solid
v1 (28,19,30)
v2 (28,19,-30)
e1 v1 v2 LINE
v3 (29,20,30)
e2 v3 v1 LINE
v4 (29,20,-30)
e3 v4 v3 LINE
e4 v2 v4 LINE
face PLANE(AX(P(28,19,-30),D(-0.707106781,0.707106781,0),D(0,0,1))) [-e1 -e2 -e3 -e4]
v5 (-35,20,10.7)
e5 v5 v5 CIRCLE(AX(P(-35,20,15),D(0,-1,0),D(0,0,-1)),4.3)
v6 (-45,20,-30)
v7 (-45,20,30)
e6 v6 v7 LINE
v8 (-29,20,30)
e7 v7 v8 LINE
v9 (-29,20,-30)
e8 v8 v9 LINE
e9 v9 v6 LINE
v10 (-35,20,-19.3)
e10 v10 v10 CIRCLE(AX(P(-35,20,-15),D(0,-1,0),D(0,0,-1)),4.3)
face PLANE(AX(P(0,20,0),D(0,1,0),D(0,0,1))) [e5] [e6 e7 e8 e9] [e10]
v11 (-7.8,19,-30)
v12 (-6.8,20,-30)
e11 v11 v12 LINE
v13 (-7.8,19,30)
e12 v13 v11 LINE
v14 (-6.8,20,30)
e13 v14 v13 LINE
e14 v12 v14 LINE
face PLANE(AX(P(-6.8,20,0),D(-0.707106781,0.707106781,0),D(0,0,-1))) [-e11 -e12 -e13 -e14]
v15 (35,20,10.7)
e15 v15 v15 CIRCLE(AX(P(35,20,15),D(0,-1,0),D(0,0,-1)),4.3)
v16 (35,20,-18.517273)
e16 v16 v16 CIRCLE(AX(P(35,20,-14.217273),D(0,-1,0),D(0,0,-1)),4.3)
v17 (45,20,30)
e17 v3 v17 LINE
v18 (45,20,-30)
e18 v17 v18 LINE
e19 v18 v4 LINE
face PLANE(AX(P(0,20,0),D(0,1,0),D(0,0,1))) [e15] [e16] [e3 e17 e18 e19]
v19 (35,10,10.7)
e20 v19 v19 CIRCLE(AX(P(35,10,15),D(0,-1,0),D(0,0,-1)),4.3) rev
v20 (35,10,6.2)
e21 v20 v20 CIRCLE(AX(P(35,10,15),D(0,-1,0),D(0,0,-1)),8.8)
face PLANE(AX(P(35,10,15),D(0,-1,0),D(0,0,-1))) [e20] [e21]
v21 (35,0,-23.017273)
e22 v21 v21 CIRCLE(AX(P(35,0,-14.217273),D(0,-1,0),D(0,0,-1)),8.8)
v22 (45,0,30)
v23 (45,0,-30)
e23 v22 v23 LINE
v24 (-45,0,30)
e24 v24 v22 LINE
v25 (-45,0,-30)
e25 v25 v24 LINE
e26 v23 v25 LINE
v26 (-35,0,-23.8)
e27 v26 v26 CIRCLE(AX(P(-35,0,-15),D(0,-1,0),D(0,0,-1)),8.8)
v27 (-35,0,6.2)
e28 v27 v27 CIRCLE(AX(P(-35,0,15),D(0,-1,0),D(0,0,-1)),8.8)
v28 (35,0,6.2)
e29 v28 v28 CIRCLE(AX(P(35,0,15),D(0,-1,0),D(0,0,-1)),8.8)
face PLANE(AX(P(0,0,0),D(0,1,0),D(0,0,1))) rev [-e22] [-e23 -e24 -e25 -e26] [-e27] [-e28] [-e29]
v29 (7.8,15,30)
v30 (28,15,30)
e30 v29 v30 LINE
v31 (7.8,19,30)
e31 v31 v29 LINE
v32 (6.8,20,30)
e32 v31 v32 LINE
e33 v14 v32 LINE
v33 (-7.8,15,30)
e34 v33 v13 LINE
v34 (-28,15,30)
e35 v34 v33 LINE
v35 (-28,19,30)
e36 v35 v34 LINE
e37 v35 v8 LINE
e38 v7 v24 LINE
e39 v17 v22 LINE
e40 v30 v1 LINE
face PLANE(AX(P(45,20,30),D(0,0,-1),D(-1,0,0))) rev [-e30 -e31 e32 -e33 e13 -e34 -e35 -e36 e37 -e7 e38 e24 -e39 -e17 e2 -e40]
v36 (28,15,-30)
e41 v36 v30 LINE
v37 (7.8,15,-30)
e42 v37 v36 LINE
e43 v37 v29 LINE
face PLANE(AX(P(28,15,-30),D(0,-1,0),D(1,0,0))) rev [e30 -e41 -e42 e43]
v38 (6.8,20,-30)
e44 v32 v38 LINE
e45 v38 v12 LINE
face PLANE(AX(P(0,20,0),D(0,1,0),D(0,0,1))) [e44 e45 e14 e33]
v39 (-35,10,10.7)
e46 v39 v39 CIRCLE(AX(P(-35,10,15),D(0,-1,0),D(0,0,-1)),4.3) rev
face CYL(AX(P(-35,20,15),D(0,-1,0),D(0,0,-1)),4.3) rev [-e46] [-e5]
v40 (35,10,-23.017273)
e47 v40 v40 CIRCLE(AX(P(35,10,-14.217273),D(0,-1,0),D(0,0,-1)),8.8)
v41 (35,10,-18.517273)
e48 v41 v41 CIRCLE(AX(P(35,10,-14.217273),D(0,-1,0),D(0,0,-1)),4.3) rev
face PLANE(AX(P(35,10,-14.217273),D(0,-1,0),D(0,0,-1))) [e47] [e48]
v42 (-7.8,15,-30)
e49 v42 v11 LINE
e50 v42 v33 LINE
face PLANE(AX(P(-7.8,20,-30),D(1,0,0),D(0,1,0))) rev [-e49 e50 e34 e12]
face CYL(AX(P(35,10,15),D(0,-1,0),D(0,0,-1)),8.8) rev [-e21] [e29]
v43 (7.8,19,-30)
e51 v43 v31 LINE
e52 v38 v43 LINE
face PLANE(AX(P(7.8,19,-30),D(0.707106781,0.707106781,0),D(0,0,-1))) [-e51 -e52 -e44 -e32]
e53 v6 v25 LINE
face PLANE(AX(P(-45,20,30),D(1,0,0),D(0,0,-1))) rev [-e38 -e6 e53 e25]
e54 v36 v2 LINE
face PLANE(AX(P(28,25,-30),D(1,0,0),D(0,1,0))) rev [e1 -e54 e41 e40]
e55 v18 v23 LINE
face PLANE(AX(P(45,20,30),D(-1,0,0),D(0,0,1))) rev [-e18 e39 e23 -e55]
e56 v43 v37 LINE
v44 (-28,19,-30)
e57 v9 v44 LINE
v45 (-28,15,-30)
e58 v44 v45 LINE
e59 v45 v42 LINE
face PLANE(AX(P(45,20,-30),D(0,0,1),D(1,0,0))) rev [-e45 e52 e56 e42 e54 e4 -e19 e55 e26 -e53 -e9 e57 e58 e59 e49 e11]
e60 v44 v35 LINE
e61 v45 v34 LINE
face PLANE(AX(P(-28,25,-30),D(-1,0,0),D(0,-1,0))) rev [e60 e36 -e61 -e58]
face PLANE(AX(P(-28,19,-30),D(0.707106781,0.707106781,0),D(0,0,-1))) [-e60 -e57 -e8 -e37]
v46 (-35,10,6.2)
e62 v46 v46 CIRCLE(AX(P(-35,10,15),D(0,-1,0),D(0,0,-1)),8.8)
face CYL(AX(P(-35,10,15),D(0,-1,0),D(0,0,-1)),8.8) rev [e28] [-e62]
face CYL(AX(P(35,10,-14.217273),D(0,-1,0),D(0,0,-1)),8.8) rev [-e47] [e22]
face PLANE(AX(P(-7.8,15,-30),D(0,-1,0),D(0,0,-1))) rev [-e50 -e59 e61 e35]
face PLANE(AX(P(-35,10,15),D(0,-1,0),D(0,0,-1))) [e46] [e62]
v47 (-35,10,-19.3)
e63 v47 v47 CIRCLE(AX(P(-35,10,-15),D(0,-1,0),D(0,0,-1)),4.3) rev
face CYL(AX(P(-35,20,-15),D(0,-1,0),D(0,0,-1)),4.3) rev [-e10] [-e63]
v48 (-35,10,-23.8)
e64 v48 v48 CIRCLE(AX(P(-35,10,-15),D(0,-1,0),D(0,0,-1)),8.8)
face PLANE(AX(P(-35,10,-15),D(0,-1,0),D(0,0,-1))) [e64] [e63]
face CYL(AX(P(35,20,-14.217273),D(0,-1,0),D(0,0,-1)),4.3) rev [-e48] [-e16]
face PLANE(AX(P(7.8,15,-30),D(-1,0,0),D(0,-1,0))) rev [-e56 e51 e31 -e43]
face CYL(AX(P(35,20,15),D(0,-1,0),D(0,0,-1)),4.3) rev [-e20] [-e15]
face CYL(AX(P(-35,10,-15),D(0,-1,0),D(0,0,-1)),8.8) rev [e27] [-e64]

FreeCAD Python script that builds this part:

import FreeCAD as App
import Part
import Sketcher

V = App.Vector


def edges_at(feature, points):
    """Names of the edges that pass closest to the given points."""
    edges = feature.Shape.Edges
    near = lambda p: min(range(len(edges)), key=lambda i: edges[i].distToShape(Part.Vertex(*p))[0])
    return sorted({f"Edge{near(p) + 1}" for p in points})

doc = App.newDocument("Part")
body = doc.addObject("PartDesign::Body", "Body")

# Sketch on XZ plane
sketch1 = body.newObject("Sketcher::SketchObject", "Sketch")
sketch1.AttachmentSupport = (doc.getObject("XZ_Plane"), [""])
sketch1.MapMode = "FlatFace"
sketch1.addGeometry([
    Part.LineSegment(V(-45, -30, 0), V(-45, 30, 0)),
    Part.LineSegment(V(-45, 30, 0), V(45, 30, 0)),
    Part.LineSegment(V(45, 30, 0), V(45, -30, 0)),
    Part.LineSegment(V(45, -30, 0), V(-45, -30, 0)),
], False)
sketch1.addConstraint([
    Sketcher.Constraint("Coincident", 0, 2, 1, 1),
    Sketcher.Constraint("Coincident", 1, 2, 2, 1),
    Sketcher.Constraint("Coincident", 2, 2, 3, 1),
    Sketcher.Constraint("Coincident", 3, 2, 0, 1),
    Sketcher.Constraint("Vertical", 0),
    Sketcher.Constraint("Horizontal", 1),
    Sketcher.Constraint("Vertical", 2),
    Sketcher.Constraint("Horizontal", 3),
    Sketcher.Constraint("Symmetric", 0, 2, 2, 2, -1, 1),
    Sketcher.Constraint("DistanceX", 1, 1, 1, 2, 90.0),
    Sketcher.Constraint("DistanceY", 0, 1, 0, 2, 60.0),
])
pad1 = body.newObject("PartDesign::Pad", "Pad")
pad1.Profile = sketch1
pad1.Length = 20
pad1.Reversed = True

# Sketch on XY plane
sketch2 = body.newObject("Sketcher::SketchObject", "Sketch001")
sketch2.AttachmentSupport = (doc.getObject("XY_Plane"), [""])
sketch2.MapMode = "FlatFace"
sketch2.AttachmentOffset = App.Placement(V(0, 0, 30), App.Rotation())
sketch2.addGeometry([
    Part.LineSegment(V(28, 25, 0), V(-28, 25, 0)),  # 0
    Part.LineSegment(V(-28, 25, 0), V(-28, 15, 0)),  # 1
    Part.LineSegment(V(-28, 15, 0), V(-8, 15, 0)),  # 2
    Part.LineSegment(V(-8, 15, 0), V(-8, 20, 0)),  # 3
    Part.LineSegment(V(-8, 20, 0), V(8, 20, 0)),  # 4
    Part.LineSegment(V(8, 20, 0), V(8, 15, 0)),  # 5
    Part.LineSegment(V(8, 15, 0), V(28, 15, 0)),  # 6
    Part.LineSegment(V(28, 15, 0), V(28, 25, 0)),  # 7
], False)
sketch2.addConstraint([
    Sketcher.Constraint("Coincident", 0, 2, 1, 1),
    Sketcher.Constraint("Coincident", 1, 2, 2, 1),
    Sketcher.Constraint("Coincident", 2, 2, 3, 1),
    Sketcher.Constraint("Coincident", 3, 2, 4, 1),
    Sketcher.Constraint("Coincident", 4, 2, 5, 1),
    Sketcher.Constraint("Coincident", 5, 2, 6, 1),
    Sketcher.Constraint("Coincident", 6, 2, 7, 1),
    Sketcher.Constraint("Coincident", 7, 2, 0, 1),
    Sketcher.Constraint("Horizontal", 0),
    Sketcher.Constraint("Vertical", 1),
    Sketcher.Constraint("Horizontal", 2),
    Sketcher.Constraint("Vertical", 3),
    Sketcher.Constraint("Horizontal", 4),
    Sketcher.Constraint("Vertical", 5),
    Sketcher.Constraint("Horizontal", 6),
    Sketcher.Constraint("Vertical", 7),
    Sketcher.Constraint("Symmetric", 2, 2, 5, 2, -2),
    Sketcher.Constraint("Equal", 2, 6),
    Sketcher.Constraint("DistanceX", 0, 2, 0, 1, 56.0),
    Sketcher.Constraint("DistanceY", 1, 2, 1, 1, 10.0),
    Sketcher.Constraint("DistanceY", 3, 1, 3, 2, 5.0),
    Sketcher.Constraint("DistanceX", 2, 1, 2, 2, 20.2),
    Sketcher.Constraint("DistanceY", -1, 1, 0, 2, 25.0),
])
pocket1 = body.newObject("PartDesign::Pocket", "Pocket")
pocket1.Profile = sketch2
pocket1.Type = "ThroughAll"

# Sketch on XZ plane
sketch3 = body.newObject("Sketcher::SketchObject", "Sketch002")
sketch3.AttachmentSupport = (doc.getObject("XZ_Plane"), [""])
sketch3.MapMode = "FlatFace"
sketch3.addGeometry([
    Part.Circle(V(-35, 15, 0), V(0, 0, 1), 4.3),
    Part.Circle(V(-35, -15, 0), V(0, 0, 1), 4.3),
    Part.Circle(V(35, -14.2, 0), V(0, 0, 1), 4.3),
    Part.Circle(V(35, 15, 0), V(0, 0, 1), 4.3),
], False)
sketch3.addConstraint([
    Sketcher.Constraint("Equal", 0, 1),
    Sketcher.Constraint("Equal", 1, 2),
    Sketcher.Constraint("Equal", 2, 3),
    Sketcher.Constraint("Symmetric", 1, 3, 3, 3, -1, 1),
    Sketcher.Constraint("Symmetric", 0, 3, 3, 3, -2),
    Sketcher.Constraint("Vertical", 2, 3, 3, 3),
    Sketcher.Constraint("Diameter", 0, 8.6),
    Sketcher.Constraint("DistanceX", 0, 3, -1, 1, 35.0),
    Sketcher.Constraint("DistanceY", -1, 1, 0, 3, 15.0),
    Sketcher.Constraint("DistanceY", 2, 3, -1, 1, 14.217273),
])
pocket2 = body.newObject("PartDesign::Pocket", "Pocket001")
pocket2.Profile = sketch3
pocket2.Type = "ThroughAll"

# Sketch on XZ plane
sketch4 = body.newObject("Sketcher::SketchObject", "Sketch003")
sketch4.AttachmentSupport = (doc.getObject("XZ_Plane"), [""])
sketch4.MapMode = "FlatFace"
sketch4.addGeometry([
    Part.Circle(V(35, 15, 0), V(0, 0, 1), 9),
    Part.Circle(V(35, -14, 0), V(0, 0, 1), 9),
    Part.Circle(V(-35, 15, 0), V(0, 0, 1), 9),
    Part.Circle(V(-35, -15, 0), V(0, 0, 1), 9),
], False)
sketch4.addConstraint([
    Sketcher.Constraint("Equal", 0, 1),
    Sketcher.Constraint("Equal", 1, 2),
    Sketcher.Constraint("Equal", 2, 3),
    Sketcher.Constraint("Symmetric", 0, 3, 3, 3, -1, 1),
    Sketcher.Constraint("Symmetric", 0, 3, 2, 3, -2),
    Sketcher.Constraint("Vertical", 0, 3, 1, 3),
    Sketcher.Constraint("Diameter", 0, 17.6),
    Sketcher.Constraint("DistanceX", -1, 1, 0, 3, 35.0),
    Sketcher.Constraint("DistanceY", -1, 1, 0, 3, 15.0),
    Sketcher.Constraint("DistanceY", 1, 3, -1, 1, 14.217273),
])
pocket3 = body.newObject("PartDesign::Pocket", "Pocket002")
pocket3.Profile = sketch4
pocket3.Length = 10
doc.recompute()

chamfer = body.newObject("PartDesign::Chamfer", "Chamfer")
chamfer.Base = (pocket3, edges_at(pocket3, [
    (28, 20, 0),
    (-28, 20, 0),
    (7.8, 20, 0),
    (-7.8, 20, 0),
]))
chamfer.Size = 1

doc.recompute()
